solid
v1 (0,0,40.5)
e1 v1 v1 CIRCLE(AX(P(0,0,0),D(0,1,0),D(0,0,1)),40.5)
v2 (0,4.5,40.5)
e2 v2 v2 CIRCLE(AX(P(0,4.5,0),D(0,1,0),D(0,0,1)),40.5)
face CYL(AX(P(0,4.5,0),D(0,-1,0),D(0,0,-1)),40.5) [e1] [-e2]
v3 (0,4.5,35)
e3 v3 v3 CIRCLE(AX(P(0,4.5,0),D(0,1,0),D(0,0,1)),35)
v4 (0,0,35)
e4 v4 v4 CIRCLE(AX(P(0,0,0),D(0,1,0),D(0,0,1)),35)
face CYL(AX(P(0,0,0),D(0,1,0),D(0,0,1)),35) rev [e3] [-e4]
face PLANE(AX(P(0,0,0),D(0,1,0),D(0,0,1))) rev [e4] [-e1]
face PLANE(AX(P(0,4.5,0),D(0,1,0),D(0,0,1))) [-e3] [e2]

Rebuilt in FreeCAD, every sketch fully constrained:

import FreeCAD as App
import Part
import Sketcher

V = App.Vector
Q = App.Units.Quantity

doc = App.newDocument("Part")
body = doc.addObject("PartDesign::Body", "Body")

# Sketch on XZ plane
sketch1 = body.newObject("Sketcher::SketchObject", "Sketch")
sketch1.AttachmentSupport = (doc.getObject("XZ_Plane"), [""])
sketch1.MapMode = "FlatFace"
sketch1.addGeometry(Part.Circle(V(0, 0, 0), V(0, 0, 1), 40), False)
sketch1.addConstraint([
    Sketcher.Constraint("Coincident", 0, 3, -1, 1),
    Sketcher.Constraint("Diameter", 0, Q("81 mm")),
])
pad1 = body.newObject("PartDesign::Pad", "Pad")
pad1.Profile = sketch1
pad1.Length = 4.5
pad1.Reversed = True

# Sketch on XZ plane
sketch2 = body.newObject("Sketcher::SketchObject", "Sketch001")
sketch2.AttachmentSupport = (doc.getObject("XZ_Plane"), [""])
sketch2.MapMode = "FlatFace"
sketch2.AttachmentOffset = App.Placement(V(0, 0, -4.5), App.Rotation())
sketch2.addGeometry(Part.Circle(V(0, 0, 0), V(0, 0, 1), 35), False)
sketch2.addConstraint([
    Sketcher.Constraint("Coincident", 0, 3, -1, 1),
    Sketcher.Constraint("Diameter", 0, Q("70 mm")),
])
pocket1 = body.newObject("PartDesign::Pocket", "Pocket")
pocket1.Profile = sketch2
pocket1.Type = "ThroughAll"
pocket1.Reversed = True

doc.recompute()
